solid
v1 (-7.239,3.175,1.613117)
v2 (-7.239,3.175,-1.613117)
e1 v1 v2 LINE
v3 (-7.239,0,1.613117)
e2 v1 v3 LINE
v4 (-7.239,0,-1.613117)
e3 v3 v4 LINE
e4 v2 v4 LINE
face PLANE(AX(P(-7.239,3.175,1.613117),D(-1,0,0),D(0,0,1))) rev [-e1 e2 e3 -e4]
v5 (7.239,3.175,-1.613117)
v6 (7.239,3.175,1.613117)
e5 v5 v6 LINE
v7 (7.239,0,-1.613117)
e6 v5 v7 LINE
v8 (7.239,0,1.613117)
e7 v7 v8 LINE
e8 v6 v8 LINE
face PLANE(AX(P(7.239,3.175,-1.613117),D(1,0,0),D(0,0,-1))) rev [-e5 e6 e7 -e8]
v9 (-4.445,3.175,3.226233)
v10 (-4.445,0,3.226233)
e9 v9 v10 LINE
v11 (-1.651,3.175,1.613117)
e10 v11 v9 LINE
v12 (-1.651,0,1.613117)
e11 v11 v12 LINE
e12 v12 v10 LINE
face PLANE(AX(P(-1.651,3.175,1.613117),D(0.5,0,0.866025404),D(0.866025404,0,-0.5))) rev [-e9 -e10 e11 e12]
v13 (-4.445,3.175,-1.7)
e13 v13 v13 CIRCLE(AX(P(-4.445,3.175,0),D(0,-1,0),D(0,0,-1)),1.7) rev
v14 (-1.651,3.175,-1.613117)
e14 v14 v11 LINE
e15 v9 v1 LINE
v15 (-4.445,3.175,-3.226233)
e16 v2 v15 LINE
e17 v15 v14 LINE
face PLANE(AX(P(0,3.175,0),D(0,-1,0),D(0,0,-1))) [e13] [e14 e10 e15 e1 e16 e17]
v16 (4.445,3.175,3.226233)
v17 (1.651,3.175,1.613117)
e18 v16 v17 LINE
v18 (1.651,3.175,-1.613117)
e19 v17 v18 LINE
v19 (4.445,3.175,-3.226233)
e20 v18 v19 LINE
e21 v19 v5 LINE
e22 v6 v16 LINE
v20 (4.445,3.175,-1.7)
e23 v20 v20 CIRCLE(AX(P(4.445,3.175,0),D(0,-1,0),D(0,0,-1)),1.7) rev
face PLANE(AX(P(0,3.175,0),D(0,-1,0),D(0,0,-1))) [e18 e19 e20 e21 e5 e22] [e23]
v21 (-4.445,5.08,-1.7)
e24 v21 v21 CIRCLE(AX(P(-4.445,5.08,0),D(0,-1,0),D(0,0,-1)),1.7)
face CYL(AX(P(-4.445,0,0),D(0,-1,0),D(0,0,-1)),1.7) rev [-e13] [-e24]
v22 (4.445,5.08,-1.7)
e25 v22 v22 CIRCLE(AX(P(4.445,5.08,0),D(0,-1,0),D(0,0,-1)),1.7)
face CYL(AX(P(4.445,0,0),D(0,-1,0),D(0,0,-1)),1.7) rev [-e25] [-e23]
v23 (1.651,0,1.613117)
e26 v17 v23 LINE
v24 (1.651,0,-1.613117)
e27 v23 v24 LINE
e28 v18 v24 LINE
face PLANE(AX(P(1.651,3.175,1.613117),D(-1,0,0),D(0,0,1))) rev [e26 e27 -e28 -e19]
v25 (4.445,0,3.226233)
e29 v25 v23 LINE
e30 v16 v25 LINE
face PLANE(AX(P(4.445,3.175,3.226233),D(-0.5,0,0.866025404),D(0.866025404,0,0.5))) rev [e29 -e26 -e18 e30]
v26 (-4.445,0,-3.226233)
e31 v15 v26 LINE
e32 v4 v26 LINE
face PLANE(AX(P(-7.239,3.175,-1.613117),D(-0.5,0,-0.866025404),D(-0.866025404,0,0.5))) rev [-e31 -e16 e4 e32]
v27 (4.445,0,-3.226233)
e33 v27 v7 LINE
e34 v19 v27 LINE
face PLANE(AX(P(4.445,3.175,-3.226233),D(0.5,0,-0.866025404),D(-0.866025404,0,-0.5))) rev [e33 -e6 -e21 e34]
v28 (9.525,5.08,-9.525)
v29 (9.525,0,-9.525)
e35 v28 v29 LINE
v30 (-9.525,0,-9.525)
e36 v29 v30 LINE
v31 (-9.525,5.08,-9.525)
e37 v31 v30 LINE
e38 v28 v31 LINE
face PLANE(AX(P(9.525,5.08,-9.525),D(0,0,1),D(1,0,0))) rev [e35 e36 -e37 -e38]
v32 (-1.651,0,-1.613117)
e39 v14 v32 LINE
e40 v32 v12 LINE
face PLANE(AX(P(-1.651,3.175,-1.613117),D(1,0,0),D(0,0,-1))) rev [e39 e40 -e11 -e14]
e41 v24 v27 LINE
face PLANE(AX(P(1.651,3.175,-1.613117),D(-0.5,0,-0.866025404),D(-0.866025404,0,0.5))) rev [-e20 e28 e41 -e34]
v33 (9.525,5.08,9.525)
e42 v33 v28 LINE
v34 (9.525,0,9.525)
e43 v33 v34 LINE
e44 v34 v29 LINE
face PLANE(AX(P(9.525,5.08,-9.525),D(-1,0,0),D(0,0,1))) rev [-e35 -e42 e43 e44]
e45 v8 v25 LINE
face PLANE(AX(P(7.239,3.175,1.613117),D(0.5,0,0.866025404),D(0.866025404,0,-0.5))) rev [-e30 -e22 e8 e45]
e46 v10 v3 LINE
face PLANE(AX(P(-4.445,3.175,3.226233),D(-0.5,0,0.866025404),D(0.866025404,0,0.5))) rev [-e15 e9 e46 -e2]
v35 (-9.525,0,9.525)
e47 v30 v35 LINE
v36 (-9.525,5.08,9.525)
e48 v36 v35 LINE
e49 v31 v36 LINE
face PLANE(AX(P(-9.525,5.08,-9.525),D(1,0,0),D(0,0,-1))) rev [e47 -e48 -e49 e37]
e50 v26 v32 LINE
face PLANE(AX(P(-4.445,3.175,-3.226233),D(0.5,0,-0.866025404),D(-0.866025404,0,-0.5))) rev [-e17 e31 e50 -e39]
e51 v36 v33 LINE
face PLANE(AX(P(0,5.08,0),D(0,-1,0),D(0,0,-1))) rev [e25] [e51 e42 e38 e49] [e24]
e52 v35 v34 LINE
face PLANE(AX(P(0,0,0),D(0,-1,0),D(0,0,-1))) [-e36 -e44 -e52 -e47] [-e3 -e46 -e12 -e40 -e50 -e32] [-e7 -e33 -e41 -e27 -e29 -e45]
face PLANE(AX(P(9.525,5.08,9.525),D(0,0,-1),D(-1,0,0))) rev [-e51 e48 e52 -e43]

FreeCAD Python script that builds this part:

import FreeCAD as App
import Part
import Sketcher
Q = App.Units.Quantity


def add_polygon(sketch, points):
    """Adds a closed chain of lines whose ends are joined by coincident constraints."""
    first, n = sketch.GeometryCount, len(points)
    for a, b in zip(points, points[1:] + points[:1]):
        sketch.addGeometry(Part.LineSegment(App.Vector(*a, 0), App.Vector(*b, 0)), False)
    for i in range(n):
        sketch.addConstraint(Sketcher.Constraint("Coincident", first + i, 2, first + (i + 1) % n, 1))

doc = App.newDocument("Part")
body = doc.addObject("PartDesign::Body", "Body")

# Sketch on XZ plane
sketch1 = body.newObject("Sketcher::SketchObject", "Sketch")
sketch1.AttachmentSupport = (doc.getObject("XZ_Plane"), [""])
sketch1.MapMode = "FlatFace"
add_polygon(sketch1, [(-9.525, -9.525), (-9.525, 9.525), (9.525, 9.525), (9.525, -9.525)])  # lines 0-3
sketch1.addConstraint([
    Sketcher.Constraint("Vertical", 0),
    Sketcher.Constraint("Horizontal", 1),
    Sketcher.Constraint("Vertical", 2),
    Sketcher.Constraint("Horizontal", 3),
    Sketcher.Constraint("Symmetric", 0, 2, 2, 2, -1, 1),
    Sketcher.Constraint("Equal", 3, 0),
    Sketcher.Constraint("DistanceX", 1, 1, 1, 2, Q("0.75 in")),
])
pad1 = body.newObject("PartDesign::Pad", "Pad")
pad1.Profile = sketch1
pad1.Length = Q("0.2 in")
pad1.Reversed = True

# Sketch on XZ plane
sketch2 = body.newObject("Sketcher::SketchObject", "Sketch001")
sketch2.AttachmentSupport = (doc.getObject("XZ_Plane"), [""])
sketch2.MapMode = "FlatFace"
sketch2.addGeometry([
    Part.Circle(App.Vector(4.445, 0, 0), App.Vector(0, 0, 1), 1.7),
    Part.Circle(App.Vector(-4.445, 0, 0), App.Vector(0, 0, 1), 1.7),
], False)
sketch2.addConstraint([
    Sketcher.Constraint("Equal", 0, 1),
    Sketcher.Constraint("Symmetric", 0, 3, 1, 3, -1, 1),
    Sketcher.Constraint("PointOnObject", 0, 3, -1),
    Sketcher.Constraint("Diameter", 0, Q("3.4 mm")),
    Sketcher.Constraint("DistanceX", 1, 3, 0, 3, Q("0.35 in")),
])
doc.recompute()
hole = body.newObject("PartDesign::Hole", "Hole")
hole.Profile = sketch2
hole.ThreadType = "None"
hole.Diameter = 3.4
hole.DepthType = "ThroughAll"

# Sketch on XZ plane
sketch3 = body.newObject("Sketcher::SketchObject", "Sketch002")
sketch3.AttachmentSupport = (doc.getObject("XZ_Plane"), [""])
sketch3.MapMode = "FlatFace"
add_polygon(sketch3, [(-7.239, -1.613117), (-4.445, -3.226233), (-1.651, -1.613117), (-1.651, 1.613117), (-4.445, 3.226233), (-7.239, 1.613117)])  # lines 0-5
add_polygon(sketch3, [(7.239, -1.613117), (7.239, 1.613117), (4.445, 3.226233), (1.651, 1.613117), (1.651, -1.613117), (4.445, -3.226233)])  # lines 6-11
sketch3.addConstraint([
    Sketcher.Constraint("Vertical", 2),
    Sketcher.Constraint("Vertical", 5),
    Sketcher.Constraint("Vertical", 6),
    Sketcher.Constraint("Vertical", 9),
    Sketcher.Constraint("Symmetric", 5, 2, 6, 2, -1, 1),
    Sketcher.Constraint("Symmetric", 0, 2, 7, 2, -1, 1),
    Sketcher.Constraint("Symmetric", 1, 2, 8, 2, -1, 1),
    Sketcher.Constraint("Symmetric", 3, 2, 10, 2, -1, 1),
    Sketcher.Constraint("Symmetric", 3, 2, 7, 2, -2),
    Sketcher.Constraint("Parallel", 0, 3),
    Sketcher.Constraint("Parallel", 1, 4),
    Sketcher.Constraint("Parallel", 7, 10),
    Sketcher.Constraint("Parallel", 8, 11),
    Sketcher.Constraint("Horizontal", 2, 2, 4, 2),
    Sketcher.Constraint("Horizontal", 1, 2, 5, 2),
    Sketcher.Constraint("Angle", 0, Q("-30 deg")),
    Sketcher.Constraint("DistanceX", 0, 2, 1, 2, Q("0.11 in")),
    Sketcher.Constraint("DistanceX", 2, 2, 6, 2, Q("0.35 in")),
    Sketcher.Constraint("DistanceY", 2, 1, 2, 2, Q("3.226233 mm")),
])
pocket1 = body.newObject("PartDesign::Pocket", "Pocket")
pocket1.Profile = sketch3
pocket1.Length = Q("0.125 in")

doc.recompute()
